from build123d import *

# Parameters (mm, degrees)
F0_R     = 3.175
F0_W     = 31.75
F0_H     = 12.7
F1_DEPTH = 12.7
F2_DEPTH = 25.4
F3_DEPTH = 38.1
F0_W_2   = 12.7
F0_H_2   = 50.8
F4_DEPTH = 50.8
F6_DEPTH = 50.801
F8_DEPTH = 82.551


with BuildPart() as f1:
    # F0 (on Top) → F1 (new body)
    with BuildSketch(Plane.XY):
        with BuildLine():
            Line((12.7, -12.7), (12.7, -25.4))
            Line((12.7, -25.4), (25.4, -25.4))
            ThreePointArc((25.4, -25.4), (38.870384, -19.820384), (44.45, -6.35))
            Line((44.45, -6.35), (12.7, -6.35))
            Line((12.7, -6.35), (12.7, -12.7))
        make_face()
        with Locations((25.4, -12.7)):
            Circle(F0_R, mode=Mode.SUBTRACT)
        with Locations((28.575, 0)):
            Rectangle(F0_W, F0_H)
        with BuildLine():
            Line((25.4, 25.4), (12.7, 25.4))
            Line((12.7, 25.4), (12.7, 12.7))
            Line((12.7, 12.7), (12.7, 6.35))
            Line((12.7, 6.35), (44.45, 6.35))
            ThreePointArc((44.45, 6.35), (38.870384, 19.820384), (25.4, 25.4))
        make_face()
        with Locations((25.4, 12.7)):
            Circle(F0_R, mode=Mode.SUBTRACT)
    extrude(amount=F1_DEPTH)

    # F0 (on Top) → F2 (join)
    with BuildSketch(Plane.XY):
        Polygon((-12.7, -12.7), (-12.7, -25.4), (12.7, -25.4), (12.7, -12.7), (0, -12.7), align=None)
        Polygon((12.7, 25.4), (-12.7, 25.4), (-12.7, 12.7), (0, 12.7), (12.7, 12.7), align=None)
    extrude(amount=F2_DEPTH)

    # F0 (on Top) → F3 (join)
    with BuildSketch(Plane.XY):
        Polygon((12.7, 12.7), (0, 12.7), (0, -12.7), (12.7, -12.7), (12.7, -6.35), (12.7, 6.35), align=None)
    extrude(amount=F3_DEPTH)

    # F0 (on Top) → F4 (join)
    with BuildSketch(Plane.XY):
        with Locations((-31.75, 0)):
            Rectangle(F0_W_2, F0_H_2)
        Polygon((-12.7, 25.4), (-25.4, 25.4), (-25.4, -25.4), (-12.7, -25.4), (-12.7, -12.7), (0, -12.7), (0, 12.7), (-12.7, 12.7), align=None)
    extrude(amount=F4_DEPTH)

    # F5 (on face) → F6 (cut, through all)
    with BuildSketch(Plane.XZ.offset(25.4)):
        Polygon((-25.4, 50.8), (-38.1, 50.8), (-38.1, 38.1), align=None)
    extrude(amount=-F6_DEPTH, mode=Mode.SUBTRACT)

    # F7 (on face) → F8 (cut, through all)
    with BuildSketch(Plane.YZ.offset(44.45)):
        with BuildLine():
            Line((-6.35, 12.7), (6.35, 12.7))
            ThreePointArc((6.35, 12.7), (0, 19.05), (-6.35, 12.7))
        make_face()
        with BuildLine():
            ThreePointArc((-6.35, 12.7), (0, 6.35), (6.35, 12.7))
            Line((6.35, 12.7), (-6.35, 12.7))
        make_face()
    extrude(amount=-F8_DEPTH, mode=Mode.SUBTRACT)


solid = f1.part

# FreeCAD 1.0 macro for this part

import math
import FreeCAD as App
import Part
import Sketcher
Q = App.Units.Quantity

doc = App.newDocument("Part")
body = doc.addObject("PartDesign::Body", "Body")

# Sketch on XY plane
sketch1 = body.newObject("Sketcher::SketchObject", "Sketch")
sketch1.AttachmentSupport = (doc.getObject("XY_Plane"), [""])
sketch1.MapMode = "FlatFace"
sketch1.addGeometry(Part.LineSegment(App.Vector(12.7, -25.4, 0), App.Vector(25.4, -25.4, 0)), False)
sketch1.addGeometry(Part.ArcOfCircle(Part.Circle(App.Vector(25.399999, -6.349999, 0), App.Vector(0, 0, 1), 19.050001), math.radians(-89.999998), math.radians(-0.000002)), False)
sketch1.addGeometry(Part.LineSegment(App.Vector(44.45, -6.35, 0), App.Vector(44.45, 6.35, 0)), False)
sketch1.addGeometry(Part.ArcOfCircle(Part.Circle(App.Vector(25.399999, 6.349999, 0), App.Vector(0, 0, 1), 19.050001), math.radians(0.000002), math.radians(89.999998)), False)
sketch1.addGeometry(Part.LineSegment(App.Vector(25.4, 25.4, 0), App.Vector(12.7, 25.4, 0)), False)
sketch1.addGeometry(Part.LineSegment(App.Vector(12.7, 25.4, 0), App.Vector(12.7, -25.4, 0)), False)
sketch1.addGeometry(Part.Circle(App.Vector(25.4, -12.7, 0), App.Vector(0, 0, 1), 3.175), False)
sketch1.addGeometry(Part.Circle(App.Vector(25.4, 12.7, 0), App.Vector(0, 0, 1), 3.175), False)
sketch1.addConstraint(Sketcher.Constraint("Tangent", 0, 2, 1, 1))
sketch1.addConstraint(Sketcher.Constraint("Tangent", 1, 2, 2, 1))
sketch1.addConstraint(Sketcher.Constraint("Tangent", 2, 2, 3, 1))
sketch1.addConstraint(Sketcher.Constraint("Tangent", 3, 2, 4, 1))
sketch1.addConstraint(Sketcher.Constraint("Coincident", 4, 2, 5, 1))
sketch1.addConstraint(Sketcher.Constraint("Coincident", 5, 2, 0, 1))
sketch1.addConstraint(Sketcher.Constraint("Horizontal", 0))
sketch1.addConstraint(Sketcher.Constraint("Vertical", 2))
sketch1.addConstraint(Sketcher.Constraint("Horizontal", 4))
sketch1.addConstraint(Sketcher.Constraint("Vertical", 5))
sketch1.addConstraint(Sketcher.Constraint("Equal", 1, 3))
sketch1.addConstraint(Sketcher.Constraint("Equal", 6, 7))
sketch1.addConstraint(Sketcher.Constraint("Symmetric", 6, 3, 7, 3, -1))
sketch1.addConstraint(Sketcher.Constraint("Vertical", 3, 3, 6, 3))
sketch1.addConstraint(Sketcher.Constraint("Equal", 4, 2))
sketch1.addConstraint(Sketcher.Constraint("Diameter", 6, Q("0.25 in")))
sketch1.addConstraint(Sketcher.Constraint("DistanceY", 5, 2, 5, 1, Q("2 in")))
sketch1.addConstraint(Sketcher.Constraint("Radius", 1, Q("0.75 in")))
sketch1.addConstraint(Sketcher.Constraint("DistanceX", -1, 1, 1, 3, Q("1 in")))
sketch1.addConstraint(Sketcher.Constraint("DistanceY", 0, 2, -1, 1, Q("1 in")))
sketch1.addConstraint(Sketcher.Constraint("DistanceY", 6, 3, 7, 3, Q("1 in")))
pad1 = body.newObject("PartDesign::Pad", "Pad")
pad1.Profile = sketch1
pad1.Length = Q("0.5 in")

# Sketch on XY plane
sketch2 = body.newObject("Sketcher::SketchObject", "Sketch001")
sketch2.AttachmentSupport = (doc.getObject("XY_Plane"), [""])
sketch2.MapMode = "FlatFace"
sketch2.addGeometry(Part.LineSegment(App.Vector(-12.7, -12.7, 0), App.Vector(-12.7, -25.4, 0)), False)
sketch2.addGeometry(Part.LineSegment(App.Vector(-12.7, -25.4, 0), App.Vector(12.7, -25.4, 0)), False)
sketch2.addGeometry(Part.LineSegment(App.Vector(12.7, -25.4, 0), App.Vector(12.7, -12.7, 0)), False)
sketch2.addGeometry(Part.LineSegment(App.Vector(12.7, -12.7, 0), App.Vector(-12.7, -12.7, 0)), False)
sketch2.addGeometry(Part.LineSegment(App.Vector(12.7, 25.4, 0), App.Vector(-12.7, 25.4, 0)), False)
sketch2.addGeometry(Part.LineSegment(App.Vector(-12.7, 25.4, 0), App.Vector(-12.7, 12.7, 0)), False)
sketch2.addGeometry(Part.LineSegment(App.Vector(-12.7, 12.7, 0), App.Vector(12.7, 12.7, 0)), False)
sketch2.addGeometry(Part.LineSegment(App.Vector(12.7, 12.7, 0), App.Vector(12.7, 25.4, 0)), False)
sketch2.addConstraint(Sketcher.Constraint("Coincident", 0, 2, 1, 1))
sketch2.addConstraint(Sketcher.Constraint("Coincident", 1, 2, 2, 1))
sketch2.addConstraint(Sketcher.Constraint("Coincident", 2, 2, 3, 1))
sketch2.addConstraint(Sketcher.Constraint("Coincident", 3, 2, 0, 1))
sketch2.addConstraint(Sketcher.Constraint("Coincident", 4, 2, 5, 1))
sketch2.addConstraint(Sketcher.Constraint("Coincident", 5, 2, 6, 1))
sketch2.addConstraint(Sketcher.Constraint("Coincident", 6, 2, 7, 1))
sketch2.addConstraint(Sketcher.Constraint("Coincident", 7, 2, 4, 1))
sketch2.addConstraint(Sketcher.Constraint("Vertical", 0))
sketch2.addConstraint(Sketcher.Constraint("Horizontal", 1))
sketch2.addConstraint(Sketcher.Constraint("Vertical", 2))
sketch2.addConstraint(Sketcher.Constraint("Horizontal", 3))
sketch2.addConstraint(Sketcher.Constraint("Horizontal", 4))
sketch2.addConstraint(Sketcher.Constraint("Vertical", 5))
sketch2.addConstraint(Sketcher.Constraint("Horizontal", 6))
sketch2.addConstraint(Sketcher.Constraint("Vertical", 7))
sketch2.addConstraint(Sketcher.Constraint("Symmetric", 1, 2, 4, 2, -1, 1))
sketch2.addConstraint(Sketcher.Constraint("Symmetric", 3, 2, 6, 2, -1, 1))
sketch2.addConstraint(Sketcher.Constraint("Vertical", 3, 2, 4, 2))
sketch2.addConstraint(Sketcher.Constraint("DistanceX", 1, 1, 1, 2, Q("1 in")))
sketch2.addConstraint(Sketcher.Constraint("DistanceY", 0, 2, 0, 1, Q("0.5 in")))
sketch2.addConstraint(Sketcher.Constraint("DistanceY", 0, 2, -1, 1, Q("1 in")))
pad2 = body.newObject("PartDesign::Pad", "Pad001")
pad2.Profile = sketch2
pad2.Length = Q("1 in")

# Sketch on XY plane
sketch3 = body.newObject("Sketcher::SketchObject", "Sketch002")
sketch3.AttachmentSupport = (doc.getObject("XY_Plane"), [""])
sketch3.MapMode = "FlatFace"
sketch3.addGeometry(Part.LineSegment(App.Vector(12.7, 12.7, 0), App.Vector(0, 12.7, 0)), False)
sketch3.addGeometry(Part.LineSegment(App.Vector(0, 12.7, 0), App.Vector(0, -12.7, 0)), False)
sketch3.addGeometry(Part.LineSegment(App.Vector(0, -12.7, 0), App.Vector(12.7, -12.7, 0)), False)
sketch3.addGeometry(Part.LineSegment(App.Vector(12.7, -12.7, 0), App.Vector(12.7, 12.7, 0)), False)
sketch3.addConstraint(Sketcher.Constraint("Coincident", 0, 2, 1, 1))
sketch3.addConstraint(Sketcher.Constraint("Coincident", 1, 2, 2, 1))
sketch3.addConstraint(Sketcher.Constraint("Coincident", 2, 2, 3, 1))
sketch3.addConstraint(Sketcher.Constraint("Coincident", 3, 2, 0, 1))
sketch3.addConstraint(Sketcher.Constraint("Horizontal", 0))
sketch3.addConstraint(Sketcher.Constraint("Vertical", 1))
sketch3.addConstraint(Sketcher.Constraint("Horizontal", 2))
sketch3.addConstraint(Sketcher.Constraint("Vertical", 3))
sketch3.addConstraint(Sketcher.Constraint("Symmetric", 0, 2, 1, 2, -1, 1))
sketch3.addConstraint(Sketcher.Constraint("DistanceY", 1, 2, 1, 1, Q("1 in")))
sketch3.addConstraint(Sketcher.Constraint("DistanceX", 0, 2, 0, 1, Q("0.5 in")))
pad3 = body.newObject("PartDesign::Pad", "Pad002")
pad3.Profile = sketch3
pad3.Length = Q("1.5 in")

# Sketch on XY plane
sketch4 = body.newObject("Sketcher::SketchObject", "Sketch003")
sketch4.AttachmentSupport = (doc.getObject("XY_Plane"), [""])
sketch4.MapMode = "FlatFace"
sketch4.addGeometry(Part.LineSegment(App.Vector(-38.1, 25.4, 0), App.Vector(-38.1, -25.4, 0)), False)
sketch4.addGeometry(Part.LineSegment(App.Vector(-38.1, -25.4, 0), App.Vector(-12.7, -25.4, 0)), False)
sketch4.addGeometry(Part.LineSegment(App.Vector(-12.7, -25.4, 0), App.Vector(-12.7, -12.7, 0)), False)
sketch4.addGeometry(Part.LineSegment(App.Vector(-12.7, -12.7, 0), App.Vector(0, -12.7, 0)), False)
sketch4.addGeometry(Part.LineSegment(App.Vector(0, -12.7, 0), App.Vector(0, 12.7, 0)), False)
sketch4.addGeometry(Part.LineSegment(App.Vector(0, 12.7, 0), App.Vector(-12.7, 12.7, 0)), False)
sketch4.addGeometry(Part.LineSegment(App.Vector(-12.7, 12.7, 0), App.Vector(-12.7, 25.4, 0)), False)
sketch4.addGeometry(Part.LineSegment(App.Vector(-12.7, 25.4, 0), App.Vector(-38.1, 25.4, 0)), False)
sketch4.addConstraint(Sketcher.Constraint("Coincident", 0, 2, 1, 1))
sketch4.addConstraint(Sketcher.Constraint("Coincident", 1, 2, 2, 1))
sketch4.addConstraint(Sketcher.Constraint("Coincident", 2, 2, 3, 1))
sketch4.addConstraint(Sketcher.Constraint("Coincident", 3, 2, 4, 1))
sketch4.addConstraint(Sketcher.Constraint("Coincident", 4, 2, 5, 1))
sketch4.addConstraint(Sketcher.Constraint("Coincident", 5, 2, 6, 1))
sketch4.addConstraint(Sketcher.Constraint("Coincident", 6, 2, 7, 1))
sketch4.addConstraint(Sketcher.Constraint("Coincident", 7, 2, 0, 1))
sketch4.addConstraint(Sketcher.Constraint("Vertical", 0))
sketch4.addConstraint(Sketcher.Constraint("Horizontal", 1))
sketch4.addConstraint(Sketcher.Constraint("Vertical", 2))
sketch4.addConstraint(Sketcher.Constraint("Horizontal", 3))
sketch4.addConstraint(Sketcher.Constraint("Vertical", 4))
sketch4.addConstraint(Sketcher.Constraint("Horizontal", 5))
sketch4.addConstraint(Sketcher.Constraint("Vertical", 6))
sketch4.addConstraint(Sketcher.Constraint("Horizontal", 7))
sketch4.addConstraint(Sketcher.Constraint("Symmetric", 3, 2, 4, 2, -1, 1))
sketch4.addConstraint(Sketcher.Constraint("Symmetric", 1, 2, 6, 2, -1))
sketch4.addConstraint(Sketcher.Constraint("Equal", 5, 2))
sketch4.addConstraint(Sketcher.Constraint("Equal", 7, 4))
sketch4.addConstraint(Sketcher.Constraint("DistanceX", 1, 1, 1, 2, Q("1 in")))
sketch4.addConstraint(Sketcher.Constraint("DistanceY", 0, 2, 0, 1, Q("2 in")))
pad4 = body.newObject("PartDesign::Pad", "Pad003")
pad4.Profile = sketch4
pad4.Length = Q("2 in")

# Sketch on XZ plane
sketch5 = body.newObject("Sketcher::SketchObject", "Sketch004")
sketch5.AttachmentSupport = (doc.getObject("XZ_Plane"), [""])
sketch5.MapMode = "FlatFace"
sketch5.AttachmentOffset = App.Placement(App.Vector(0, 0, 1 * 25.4), App.Rotation())
sketch5.addGeometry(Part.LineSegment(App.Vector(-25.4, 50.8, 0), App.Vector(-38.1, 50.8, 0)), False)
sketch5.addGeometry(Part.LineSegment(App.Vector(-38.1, 50.8, 0), App.Vector(-38.1, 38.1, 0)), False)
sketch5.addGeometry(Part.LineSegment(App.Vector(-38.1, 38.1, 0), App.Vector(-25.4, 50.8, 0)), False)
sketch5.addConstraint(Sketcher.Constraint("Coincident", 0, 2, 1, 1))
sketch5.addConstraint(Sketcher.Constraint("Coincident", 1, 2, 2, 1))
sketch5.addConstraint(Sketcher.Constraint("Coincident", 2, 2, 0, 1))
sketch5.addConstraint(Sketcher.Constraint("Horizontal", 0))
sketch5.addConstraint(Sketcher.Constraint("Vertical", 1))
sketch5.addConstraint(Sketcher.Constraint("Equal", 0, 1))
sketch5.addConstraint(Sketcher.Constraint("DistanceX", 0, 2, 0, 1, Q("0.5 in")))
sketch5.addConstraint(Sketcher.Constraint("DistanceY", -1, 1, 0, 2, Q("2 in")))
sketch5.addConstraint(Sketcher.Constraint("DistanceX", 2, 2, -1, 1, Q("1 in")))
pocket1 = body.newObject("PartDesign::Pocket", "Pocket")
pocket1.Profile = sketch5
pocket1.Type = "ThroughAll"

# Sketch on YZ plane
sketch6 = body.newObject("Sketcher::SketchObject", "Sketch005")
sketch6.AttachmentSupport = (doc.getObject("YZ_Plane"), [""])
sketch6.MapMode = "FlatFace"
sketch6.AttachmentOffset = App.Placement(App.Vector(0, 0, 1.75 * 25.4), App.Rotation())
sketch6.addGeometry(Part.Circle(App.Vector(0, 12.7, 0), App.Vector(0, 0, 1), 6.35), False)
sketch6.addConstraint(Sketcher.Constraint("PointOnObject", 0, 3, -2))
sketch6.addConstraint(Sketcher.Constraint("Diameter", 0, Q("0.5 in")))
sketch6.addConstraint(Sketcher.Constraint("DistanceY", -1, 1, 0, 3, Q("0.5 in")))
pocket2 = body.newObject("PartDesign::Pocket", "Pocket001")
pocket2.Profile = sketch6
pocket2.Type = "ThroughAll"

doc.recompute()
